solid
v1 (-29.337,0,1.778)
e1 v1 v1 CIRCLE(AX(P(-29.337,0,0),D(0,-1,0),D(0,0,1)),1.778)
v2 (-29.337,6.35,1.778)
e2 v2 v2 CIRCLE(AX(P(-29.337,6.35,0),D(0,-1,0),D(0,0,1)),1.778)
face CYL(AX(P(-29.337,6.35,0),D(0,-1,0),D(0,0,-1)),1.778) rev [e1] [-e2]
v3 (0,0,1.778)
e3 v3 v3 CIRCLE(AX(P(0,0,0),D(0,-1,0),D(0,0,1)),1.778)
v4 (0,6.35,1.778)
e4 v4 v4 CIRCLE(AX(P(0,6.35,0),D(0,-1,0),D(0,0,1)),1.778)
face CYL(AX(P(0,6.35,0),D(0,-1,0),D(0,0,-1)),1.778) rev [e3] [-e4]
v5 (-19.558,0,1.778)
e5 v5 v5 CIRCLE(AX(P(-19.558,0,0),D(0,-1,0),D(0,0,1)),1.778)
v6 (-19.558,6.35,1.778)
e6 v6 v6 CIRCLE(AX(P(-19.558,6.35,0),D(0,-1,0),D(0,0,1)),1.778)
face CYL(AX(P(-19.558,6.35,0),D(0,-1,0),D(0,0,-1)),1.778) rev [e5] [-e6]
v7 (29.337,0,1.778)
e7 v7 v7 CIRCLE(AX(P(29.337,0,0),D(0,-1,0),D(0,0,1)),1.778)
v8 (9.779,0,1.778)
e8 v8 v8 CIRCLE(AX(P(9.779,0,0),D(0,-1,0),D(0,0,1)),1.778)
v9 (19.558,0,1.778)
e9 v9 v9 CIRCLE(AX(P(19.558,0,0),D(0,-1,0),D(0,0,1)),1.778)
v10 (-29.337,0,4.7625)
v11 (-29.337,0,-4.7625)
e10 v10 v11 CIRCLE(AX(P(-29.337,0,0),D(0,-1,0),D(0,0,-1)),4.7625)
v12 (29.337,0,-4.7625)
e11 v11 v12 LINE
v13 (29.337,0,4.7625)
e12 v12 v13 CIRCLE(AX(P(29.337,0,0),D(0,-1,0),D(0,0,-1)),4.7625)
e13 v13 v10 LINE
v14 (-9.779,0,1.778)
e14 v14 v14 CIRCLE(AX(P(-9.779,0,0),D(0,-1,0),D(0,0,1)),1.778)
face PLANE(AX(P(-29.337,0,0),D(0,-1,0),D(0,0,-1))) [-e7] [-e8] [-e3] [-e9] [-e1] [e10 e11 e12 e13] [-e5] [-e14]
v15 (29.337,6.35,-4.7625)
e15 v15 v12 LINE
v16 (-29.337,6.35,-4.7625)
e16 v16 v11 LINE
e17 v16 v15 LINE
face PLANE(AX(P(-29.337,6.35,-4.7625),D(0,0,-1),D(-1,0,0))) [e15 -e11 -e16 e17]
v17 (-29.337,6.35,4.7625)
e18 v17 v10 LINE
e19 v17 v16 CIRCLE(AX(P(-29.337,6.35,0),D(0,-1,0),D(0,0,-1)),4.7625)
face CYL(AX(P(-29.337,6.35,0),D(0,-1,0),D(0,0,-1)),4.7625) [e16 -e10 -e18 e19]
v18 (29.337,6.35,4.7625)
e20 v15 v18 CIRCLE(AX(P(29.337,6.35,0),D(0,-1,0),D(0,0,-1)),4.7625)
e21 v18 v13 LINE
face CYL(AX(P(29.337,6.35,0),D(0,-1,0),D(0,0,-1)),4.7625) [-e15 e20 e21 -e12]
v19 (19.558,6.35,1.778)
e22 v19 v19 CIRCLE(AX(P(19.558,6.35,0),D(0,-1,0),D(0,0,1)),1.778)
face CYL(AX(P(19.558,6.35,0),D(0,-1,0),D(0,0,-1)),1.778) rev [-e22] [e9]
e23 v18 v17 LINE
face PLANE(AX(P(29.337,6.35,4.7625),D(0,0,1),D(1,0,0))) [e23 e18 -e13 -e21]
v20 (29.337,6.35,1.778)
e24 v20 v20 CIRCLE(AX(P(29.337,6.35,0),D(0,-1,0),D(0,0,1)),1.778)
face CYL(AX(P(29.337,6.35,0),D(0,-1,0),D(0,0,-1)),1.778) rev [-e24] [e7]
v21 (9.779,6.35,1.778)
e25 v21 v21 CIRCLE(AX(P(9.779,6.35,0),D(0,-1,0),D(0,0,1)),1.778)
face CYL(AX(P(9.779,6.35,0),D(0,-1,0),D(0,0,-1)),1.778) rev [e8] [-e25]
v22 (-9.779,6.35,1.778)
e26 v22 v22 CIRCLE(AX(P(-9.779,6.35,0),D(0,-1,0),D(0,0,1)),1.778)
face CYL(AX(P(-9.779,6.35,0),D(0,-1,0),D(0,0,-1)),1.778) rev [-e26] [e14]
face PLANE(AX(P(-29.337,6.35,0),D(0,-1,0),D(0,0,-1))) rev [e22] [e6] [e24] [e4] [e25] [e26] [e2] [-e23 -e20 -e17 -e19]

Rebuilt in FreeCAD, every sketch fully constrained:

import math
import FreeCAD as App
import Part
import Sketcher
from FreeCAD import Vector
Q = App.Units.Quantity

doc = App.newDocument("Part")
body = doc.addObject("PartDesign::Body", "Body")

# Sketch on XZ plane
sketch1 = body.newObject("Sketcher::SketchObject", "Sketch")
sketch1.AttachmentSupport = (doc.getObject("XZ_Plane"), [""])
sketch1.MapMode = "FlatFace"
sketch1.addGeometry([
    Part.LineSegment(Vector(-29.337, -4.7625, 0), Vector(29.337, -4.7625, 0)),  # 0
    Part.ArcOfCircle(Part.Circle(Vector(29.337, 0, 0), Vector(0, 0, 1), 4.7625), math.radians(-90), math.radians(90)),  # 1
    Part.LineSegment(Vector(29.337, 4.7625, 0), Vector(-29.337, 4.7625, 0)),  # 2
    Part.ArcOfCircle(Part.Circle(Vector(-29.337, 0, 0), Vector(0, 0, 1), 4.7625), math.radians(90), math.radians(270)),  # 3
    Part.Circle(Vector(-29.337, 0, 0), Vector(0, 0, 1), 1.778),  # 4
    Part.Circle(Vector(-19.558, 0, 0), Vector(0, 0, 1), 1.778),  # 5
    Part.Circle(Vector(-9.779, 0, 0), Vector(0, 0, 1), 1.778),  # 6
    Part.Circle(Vector(0, 0, 0), Vector(0, 0, 1), 1.778),  # 7
    Part.Circle(Vector(9.779, 0, 0), Vector(0, 0, 1), 1.778),  # 8
    Part.Circle(Vector(19.558, 0, 0), Vector(0, 0, 1), 1.778),  # 9
    Part.Circle(Vector(29.337, 0, 0), Vector(0, 0, 1), 1.778),  # 10
], False)
sketch1.addConstraint([
    Sketcher.Constraint("Tangent", 0, 2, 1, 1),
    Sketcher.Constraint("Tangent", 1, 2, 2, 1),
    Sketcher.Constraint("Tangent", 2, 2, 3, 1),
    Sketcher.Constraint("Tangent", 3, 2, 0, 1),
    Sketcher.Constraint("Horizontal", 0),
    Sketcher.Constraint("Horizontal", 2),
    Sketcher.Constraint("Coincident", 7, 3, -1, 1),
    Sketcher.Constraint("Coincident", 4, 3, 3, 3),
    Sketcher.Constraint("Coincident", 10, 3, 1, 3),
    Sketcher.Constraint("Equal", 4, 5),
    Sketcher.Constraint("Equal", 5, 6),
    Sketcher.Constraint("Equal", 6, 7),
    Sketcher.Constraint("Equal", 7, 8),
    Sketcher.Constraint("Equal", 8, 9),
    Sketcher.Constraint("Equal", 9, 10),
    Sketcher.Constraint("Symmetric", 1, 3, 3, 3, -1, 1),
    Sketcher.Constraint("Symmetric", 6, 3, 8, 3, -1, 1),
    Sketcher.Constraint("Symmetric", 5, 3, 9, 3, -1, 1),
    Sketcher.Constraint("PointOnObject", 5, 3, -1),
    Sketcher.Constraint("PointOnObject", 6, 3, -1),
    Sketcher.Constraint("Diameter", 4, Q("0.14 in")),
    Sketcher.Constraint("Radius", 1, Q("0.1875 in")),
    Sketcher.Constraint("DistanceX", 0, 1, 0, 2, Q("2.31 in")),
    Sketcher.Constraint("DistanceX", 5, 3, -1, 1, Q("0.77 in")),
    Sketcher.Constraint("DistanceX", 3, 3, 6, 3, Q("0.77 in")),
])
pad1 = body.newObject("PartDesign::Pad", "Pad")
pad1.Profile = sketch1
pad1.Length = Q("0.25 in")
pad1.Reversed = True

doc.recompute()
